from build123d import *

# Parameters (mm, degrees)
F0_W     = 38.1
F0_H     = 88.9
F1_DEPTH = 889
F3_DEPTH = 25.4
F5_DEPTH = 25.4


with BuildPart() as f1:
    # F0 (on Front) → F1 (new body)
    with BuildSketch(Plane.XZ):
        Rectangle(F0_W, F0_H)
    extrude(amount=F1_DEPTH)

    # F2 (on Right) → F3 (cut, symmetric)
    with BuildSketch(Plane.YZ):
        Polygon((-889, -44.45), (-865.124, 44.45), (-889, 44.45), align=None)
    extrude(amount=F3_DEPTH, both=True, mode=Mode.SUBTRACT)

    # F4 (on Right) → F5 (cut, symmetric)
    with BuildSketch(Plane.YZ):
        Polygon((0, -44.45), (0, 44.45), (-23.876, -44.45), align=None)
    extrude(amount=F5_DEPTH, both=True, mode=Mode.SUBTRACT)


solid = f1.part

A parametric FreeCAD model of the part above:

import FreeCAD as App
import Part
import Sketcher
Q = App.Units.Quantity


def add_polygon(sketch, points):
    """Adds a closed chain of lines whose ends are joined by coincident constraints."""
    first, n = sketch.GeometryCount, len(points)
    for a, b in zip(points, points[1:] + points[:1]):
        sketch.addGeometry(Part.LineSegment(App.Vector(*a, 0), App.Vector(*b, 0)), False)
    for i in range(n):
        sketch.addConstraint(Sketcher.Constraint("Coincident", first + i, 2, first + (i + 1) % n, 1))

doc = App.newDocument("Part")
body = doc.addObject("PartDesign::Body", "Body")

# Sketch on XZ plane
sketch1 = body.newObject("Sketcher::SketchObject", "Sketch")
sketch1.AttachmentSupport = (doc.getObject("XZ_Plane"), [""])
sketch1.MapMode = "FlatFace"
add_polygon(sketch1, [(-19.05, 44.45), (-19.05, -44.45), (19.05, -44.45), (19.05, 44.45)])  # lines 0-3
sketch1.addConstraint(Sketcher.Constraint("Vertical", 0))
sketch1.addConstraint(Sketcher.Constraint("Horizontal", 1))
sketch1.addConstraint(Sketcher.Constraint("Vertical", 2))
sketch1.addConstraint(Sketcher.Constraint("Horizontal", 3))
sketch1.addConstraint(Sketcher.Constraint("Symmetric", 0, 2, 2, 2, -1, 1))
sketch1.addConstraint(Sketcher.Constraint("DistanceX", 1, 1, 1, 2, Q("1.5 in")))
sketch1.addConstraint(Sketcher.Constraint("DistanceY", 0, 2, 0, 1, Q("3.5 in")))
pad1 = body.newObject("PartDesign::Pad", "Pad")
pad1.Profile = sketch1
pad1.Length = Q("35 in")

# Sketch on YZ plane
sketch2 = body.newObject("Sketcher::SketchObject", "Sketch001")
sketch2.AttachmentSupport = (doc.getObject("YZ_Plane"), [""])
sketch2.MapMode = "FlatFace"
add_polygon(sketch2, [(-889, -44.45), (-865.124, 44.45), (-889, 44.45)])  # lines 0-2
sketch2.addConstraint(Sketcher.Constraint("Horizontal", 1))
sketch2.addConstraint(Sketcher.Constraint("Vertical", 2))
sketch2.addConstraint(Sketcher.Constraint("DistanceY", 2, 2, 2, 1, Q("3.5 in")))
sketch2.addConstraint(Sketcher.Constraint("DistanceX", 1, 2, -1, 1, Q("35 in")))
sketch2.addConstraint(Sketcher.Constraint("DistanceX", 1, 2, 1, 1, Q("0.94 in")))
sketch2.addConstraint(Sketcher.Constraint("DistanceY", -1, 1, 0, 2, Q("1.75 in")))
pocket1 = body.newObject("PartDesign::Pocket", "Pocket")
pocket1.Profile = sketch2
pocket1.Length = Q("2 in")
pocket1.Midplane = True

# Sketch on YZ plane
sketch3 = body.newObject("Sketcher::SketchObject", "Sketch002")
sketch3.AttachmentSupport = (doc.getObject("YZ_Plane"), [""])
sketch3.MapMode = "FlatFace"
add_polygon(sketch3, [(0, -44.45), (0, 44.45), (-23.876, -44.45)])  # lines 0-2
sketch3.addConstraint(Sketcher.Constraint("Vertical", 0))
sketch3.addConstraint(Sketcher.Constraint("Horizontal", 2))
sketch3.addConstraint(Sketcher.Constraint("Symmetric", 0, 2, 2, 2, -1, 1))
sketch3.addConstraint(Sketcher.Constraint("DistanceY", 0, 1, 0, 2, Q("3.5 in")))
sketch3.addConstraint(Sketcher.Constraint("DistanceX", 2, 1, 2, 2, Q("0.94 in")))
pocket2 = body.newObject("PartDesign::Pocket", "Pocket001")
pocket2.Profile = sketch3
pocket2.Length = Q("2 in")
pocket2.Midplane = True

doc.recompute()
